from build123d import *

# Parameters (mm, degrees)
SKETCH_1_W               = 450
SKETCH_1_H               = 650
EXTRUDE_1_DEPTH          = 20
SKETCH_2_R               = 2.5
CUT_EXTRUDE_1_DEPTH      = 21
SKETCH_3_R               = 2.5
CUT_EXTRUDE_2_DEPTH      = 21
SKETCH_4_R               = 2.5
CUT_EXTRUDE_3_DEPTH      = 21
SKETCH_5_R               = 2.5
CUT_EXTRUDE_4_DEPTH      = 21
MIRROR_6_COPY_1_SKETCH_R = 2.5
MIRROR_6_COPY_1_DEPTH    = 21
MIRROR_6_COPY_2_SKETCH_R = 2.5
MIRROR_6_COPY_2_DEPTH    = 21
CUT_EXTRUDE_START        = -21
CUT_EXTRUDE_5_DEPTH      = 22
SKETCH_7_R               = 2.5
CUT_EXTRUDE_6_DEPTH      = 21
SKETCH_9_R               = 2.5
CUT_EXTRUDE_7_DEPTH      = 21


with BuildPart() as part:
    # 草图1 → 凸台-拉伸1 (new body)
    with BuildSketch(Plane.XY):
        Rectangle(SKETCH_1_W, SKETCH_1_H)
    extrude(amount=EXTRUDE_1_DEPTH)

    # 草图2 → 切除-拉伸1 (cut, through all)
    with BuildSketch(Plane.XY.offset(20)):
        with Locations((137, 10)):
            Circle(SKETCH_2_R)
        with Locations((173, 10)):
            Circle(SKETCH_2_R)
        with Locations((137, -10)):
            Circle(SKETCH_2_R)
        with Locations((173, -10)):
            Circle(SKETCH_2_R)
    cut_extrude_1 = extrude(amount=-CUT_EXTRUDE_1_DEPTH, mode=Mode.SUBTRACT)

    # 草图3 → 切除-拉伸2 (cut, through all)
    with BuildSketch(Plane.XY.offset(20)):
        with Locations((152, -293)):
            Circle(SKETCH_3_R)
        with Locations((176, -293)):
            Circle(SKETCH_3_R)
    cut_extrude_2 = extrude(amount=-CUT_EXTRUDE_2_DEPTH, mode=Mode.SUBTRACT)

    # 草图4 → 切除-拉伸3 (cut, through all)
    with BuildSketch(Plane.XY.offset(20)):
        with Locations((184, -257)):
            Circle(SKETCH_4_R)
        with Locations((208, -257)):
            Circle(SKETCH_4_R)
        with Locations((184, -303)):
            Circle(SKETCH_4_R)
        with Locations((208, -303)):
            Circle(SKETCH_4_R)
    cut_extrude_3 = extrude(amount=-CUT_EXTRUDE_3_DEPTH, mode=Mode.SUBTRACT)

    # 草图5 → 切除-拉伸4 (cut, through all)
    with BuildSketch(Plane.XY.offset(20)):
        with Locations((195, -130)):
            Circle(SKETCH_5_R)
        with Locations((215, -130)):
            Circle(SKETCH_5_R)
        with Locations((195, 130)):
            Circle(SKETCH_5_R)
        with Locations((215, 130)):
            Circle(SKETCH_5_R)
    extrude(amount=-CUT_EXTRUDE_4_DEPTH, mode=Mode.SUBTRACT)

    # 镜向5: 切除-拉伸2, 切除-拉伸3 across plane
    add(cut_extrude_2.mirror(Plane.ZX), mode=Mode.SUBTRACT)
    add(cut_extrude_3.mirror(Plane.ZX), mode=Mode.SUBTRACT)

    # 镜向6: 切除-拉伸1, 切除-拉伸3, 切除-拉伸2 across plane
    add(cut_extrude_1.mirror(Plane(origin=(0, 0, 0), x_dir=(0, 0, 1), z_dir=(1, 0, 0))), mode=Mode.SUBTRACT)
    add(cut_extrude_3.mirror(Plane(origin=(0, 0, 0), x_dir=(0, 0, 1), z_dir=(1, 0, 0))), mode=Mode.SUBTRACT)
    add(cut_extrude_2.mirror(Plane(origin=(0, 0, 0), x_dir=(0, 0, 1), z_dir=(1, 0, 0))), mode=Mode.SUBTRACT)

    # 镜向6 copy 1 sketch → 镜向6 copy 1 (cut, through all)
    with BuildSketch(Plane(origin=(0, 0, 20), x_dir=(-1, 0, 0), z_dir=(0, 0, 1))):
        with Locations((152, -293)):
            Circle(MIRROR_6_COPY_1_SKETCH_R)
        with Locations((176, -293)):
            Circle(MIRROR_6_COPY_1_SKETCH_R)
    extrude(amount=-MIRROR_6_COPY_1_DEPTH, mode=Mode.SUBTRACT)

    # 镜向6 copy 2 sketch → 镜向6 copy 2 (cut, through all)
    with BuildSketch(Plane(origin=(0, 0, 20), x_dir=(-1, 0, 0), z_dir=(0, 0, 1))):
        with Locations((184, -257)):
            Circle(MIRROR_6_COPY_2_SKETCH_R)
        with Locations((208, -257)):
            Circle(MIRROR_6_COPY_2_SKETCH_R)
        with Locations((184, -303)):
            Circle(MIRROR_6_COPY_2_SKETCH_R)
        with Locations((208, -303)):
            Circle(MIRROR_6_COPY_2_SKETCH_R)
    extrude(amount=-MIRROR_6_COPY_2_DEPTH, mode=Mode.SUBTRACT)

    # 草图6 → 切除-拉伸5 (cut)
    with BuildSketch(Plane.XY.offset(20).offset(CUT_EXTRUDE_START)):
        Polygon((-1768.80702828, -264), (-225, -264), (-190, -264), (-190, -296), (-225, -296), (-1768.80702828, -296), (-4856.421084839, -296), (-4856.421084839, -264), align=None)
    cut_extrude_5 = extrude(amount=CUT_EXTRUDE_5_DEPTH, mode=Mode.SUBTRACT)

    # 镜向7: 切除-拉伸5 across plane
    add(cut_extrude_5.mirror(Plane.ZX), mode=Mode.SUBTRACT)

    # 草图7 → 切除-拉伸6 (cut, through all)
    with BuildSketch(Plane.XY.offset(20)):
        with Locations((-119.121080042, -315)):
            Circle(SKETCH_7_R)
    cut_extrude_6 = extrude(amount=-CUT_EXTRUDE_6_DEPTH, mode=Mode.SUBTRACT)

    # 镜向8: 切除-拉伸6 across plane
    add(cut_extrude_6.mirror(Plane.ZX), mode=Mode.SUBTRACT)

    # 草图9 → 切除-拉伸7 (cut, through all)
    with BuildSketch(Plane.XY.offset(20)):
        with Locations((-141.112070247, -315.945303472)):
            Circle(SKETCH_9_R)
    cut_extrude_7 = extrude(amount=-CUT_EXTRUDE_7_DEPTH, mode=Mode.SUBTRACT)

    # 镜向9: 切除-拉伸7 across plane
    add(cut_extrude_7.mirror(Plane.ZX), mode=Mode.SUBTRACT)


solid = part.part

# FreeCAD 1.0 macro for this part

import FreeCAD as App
import Part
import Sketcher

doc = App.newDocument("Part")
body = doc.addObject("PartDesign::Body", "Body")

sketch1 = body.newObject("Sketcher::SketchObject", "Sketch")
sketch1.AttachmentSupport = (doc.getObject("XY_Plane"), [""])
sketch1.MapMode = "FlatFace"
sketch1.addGeometry([
    Part.LineSegment(App.Vector(-225, 325, 0), App.Vector(-225, -325, 0)),
    Part.LineSegment(App.Vector(-225, -325, 0), App.Vector(225, -325, 0)),
    Part.LineSegment(App.Vector(225, -325, 0), App.Vector(225, 325, 0)),
    Part.LineSegment(App.Vector(225, 325, 0), App.Vector(-225, 325, 0)),
], False)
sketch1.addConstraint([
    Sketcher.Constraint("Coincident", 0, 2, 1, 1),
    Sketcher.Constraint("Coincident", 1, 2, 2, 1),
    Sketcher.Constraint("Coincident", 2, 2, 3, 1),
    Sketcher.Constraint("Coincident", 3, 2, 0, 1),
    Sketcher.Constraint("Vertical", 0),
    Sketcher.Constraint("Horizontal", 1),
    Sketcher.Constraint("Vertical", 2),
    Sketcher.Constraint("Horizontal", 3),
    Sketcher.Constraint("Symmetric", 0, 2, 2, 2, -1, 1),
    Sketcher.Constraint("DistanceX", 1, 1, 1, 2, 450.0),
    Sketcher.Constraint("DistanceY", 0, 2, 0, 1, 650.0),
])
pad1 = body.newObject("PartDesign::Pad", "Pad")
pad1.Profile = sketch1
pad1.Length = 20

sketch2 = body.newObject("Sketcher::SketchObject", "Sketch001")
sketch2.AttachmentSupport = (doc.getObject("XY_Plane"), [""])
sketch2.MapMode = "FlatFace"
sketch2.AttachmentOffset = App.Placement(App.Vector(0, 0, 20), App.Rotation())
sketch2.addGeometry([
    Part.Circle(App.Vector(137, 10, 0), App.Vector(0, 0, 1), 2.5),
    Part.Circle(App.Vector(173, 10, 0), App.Vector(0, 0, 1), 2.5),
    Part.Circle(App.Vector(137, -10, 0), App.Vector(0, 0, 1), 2.5),
    Part.Circle(App.Vector(173, -10, 0), App.Vector(0, 0, 1), 2.5),
], False)
sketch2.addConstraint([
    Sketcher.Constraint("Equal", 0, 1),
    Sketcher.Constraint("Equal", 1, 2),
    Sketcher.Constraint("Equal", 2, 3),
    Sketcher.Constraint("Symmetric", 0, 3, 2, 3, -1),
    Sketcher.Constraint("Symmetric", 1, 3, 3, 3, -1),
    Sketcher.Constraint("Horizontal", 0, 3, 1, 3),
    Sketcher.Constraint("Diameter", 0, 5.0),
    Sketcher.Constraint("DistanceX", -1, 1, 0, 3, 137.0),
    Sketcher.Constraint("DistanceY", -1, 1, 0, 3, 10.0),
    Sketcher.Constraint("DistanceX", -1, 1, 1, 3, 173.0),
])
pocket1 = body.newObject("PartDesign::Pocket", "Pocket")
pocket1.Profile = sketch2
pocket1.Type = "ThroughAll"

sketch3 = body.newObject("Sketcher::SketchObject", "Sketch002")
sketch3.AttachmentSupport = (doc.getObject("XY_Plane"), [""])
sketch3.MapMode = "FlatFace"
sketch3.AttachmentOffset = App.Placement(App.Vector(0, 0, 20), App.Rotation())
sketch3.addGeometry([
    Part.Circle(App.Vector(152, -293, 0), App.Vector(0, 0, 1), 2.5),
    Part.Circle(App.Vector(176, -293, 0), App.Vector(0, 0, 1), 2.5),
], False)
sketch3.addConstraint([
    Sketcher.Constraint("Equal", 0, 1),
    Sketcher.Constraint("Horizontal", 0, 3, 1, 3),
    Sketcher.Constraint("Diameter", 0, 5.0),
    Sketcher.Constraint("DistanceX", -1, 1, 0, 3, 152.0),
    Sketcher.Constraint("DistanceY", 0, 3, -1, 1, 293.0),
    Sketcher.Constraint("DistanceX", -1, 1, 1, 3, 176.0),
])
pocket2 = body.newObject("PartDesign::Pocket", "Pocket001")
pocket2.Profile = sketch3
pocket2.Type = "ThroughAll"

sketch4 = body.newObject("Sketcher::SketchObject", "Sketch003")
sketch4.AttachmentSupport = (doc.getObject("XY_Plane"), [""])
sketch4.MapMode = "FlatFace"
sketch4.AttachmentOffset = App.Placement(App.Vector(0, 0, 20), App.Rotation())
sketch4.addGeometry([
    Part.Circle(App.Vector(184, -257, 0), App.Vector(0, 0, 1), 2.5),
    Part.Circle(App.Vector(208, -257, 0), App.Vector(0, 0, 1), 2.5),
    Part.Circle(App.Vector(184, -303, 0), App.Vector(0, 0, 1), 2.5),
    Part.Circle(App.Vector(208, -303, 0), App.Vector(0, 0, 1), 2.5),
], False)
sketch4.addConstraint([
    Sketcher.Constraint("Equal", 0, 1),
    Sketcher.Constraint("Equal", 1, 2),
    Sketcher.Constraint("Equal", 2, 3),
    Sketcher.Constraint("Horizontal", 0, 3, 1, 3),
    Sketcher.Constraint("Horizontal", 2, 3, 3, 3),
    Sketcher.Constraint("Vertical", 0, 3, 2, 3),
    Sketcher.Constraint("Vertical", 1, 3, 3, 3),
    Sketcher.Constraint("Diameter", 0, 5.0),
    Sketcher.Constraint("DistanceX", -1, 1, 0, 3, 184.0),
    Sketcher.Constraint("DistanceY", 0, 3, -1, 1, 257.0),
    Sketcher.Constraint("DistanceX", -1, 1, 1, 3, 208.0),
    Sketcher.Constraint("DistanceY", 2, 3, -1, 1, 303.0),
])
pocket3 = body.newObject("PartDesign::Pocket", "Pocket002")
pocket3.Profile = sketch4
pocket3.Type = "ThroughAll"

sketch5 = body.newObject("Sketcher::SketchObject", "Sketch004")
sketch5.AttachmentSupport = (doc.getObject("XY_Plane"), [""])
sketch5.MapMode = "FlatFace"
sketch5.AttachmentOffset = App.Placement(App.Vector(0, 0, 20), App.Rotation())
sketch5.addGeometry([
    Part.Circle(App.Vector(195, -130, 0), App.Vector(0, 0, 1), 2.5),
    Part.Circle(App.Vector(215, -130, 0), App.Vector(0, 0, 1), 2.5),
    Part.Circle(App.Vector(195, 130, 0), App.Vector(0, 0, 1), 2.5),
    Part.Circle(App.Vector(215, 130, 0), App.Vector(0, 0, 1), 2.5),
], False)
sketch5.addConstraint([
    Sketcher.Constraint("Equal", 0, 1),
    Sketcher.Constraint("Equal", 1, 2),
    Sketcher.Constraint("Equal", 2, 3),
    Sketcher.Constraint("Symmetric", 0, 3, 2, 3, -1),
    Sketcher.Constraint("Symmetric", 1, 3, 3, 3, -1),
    Sketcher.Constraint("Horizontal", 0, 3, 1, 3),
    Sketcher.Constraint("Diameter", 0, 5.0),
    Sketcher.Constraint("DistanceX", -1, 1, 0, 3, 195.0),
    Sketcher.Constraint("DistanceY", 0, 3, -1, 1, 130.0),
    Sketcher.Constraint("DistanceX", -1, 1, 1, 3, 215.0),
])
pocket4 = body.newObject("PartDesign::Pocket", "Pocket003")
pocket4.Profile = sketch5
pocket4.Type = "ThroughAll"
doc.recompute()

mirrored = body.newObject("PartDesign::Mirrored", "Mirrored")
mirrored.Originals = [pocket2, pocket3]
mirrored.MirrorPlane = (doc.getObject("XZ_Plane"), [""])
body.Tip = mirrored
doc.recompute()

mirrored2 = body.newObject("PartDesign::Mirrored", "Mirrored001")
mirrored2.Originals = [pocket1, pocket3, pocket2]
mirrored2.MirrorPlane = (doc.getObject("YZ_Plane"), [""])
body.Tip = mirrored2

sketch6 = body.newObject("Sketcher::SketchObject", "Sketch005")
sketch6.AttachmentSupport = (doc.getObject("XY_Plane"), [""])
sketch6.MapMode = "FlatFace"
sketch6.AttachmentOffset = App.Placement(App.Vector(0, 0, 20), App.Rotation())
sketch6.addGeometry([
    Part.Circle(App.Vector(-152, 293, 0), App.Vector(0, 0, 1), 2.5),
    Part.Circle(App.Vector(-176, 293, 0), App.Vector(0, 0, 1), 2.5),
], False)
sketch6.addConstraint([
    Sketcher.Constraint("Equal", 0, 1),
    Sketcher.Constraint("Horizontal", 0, 3, 1, 3),
    Sketcher.Constraint("Diameter", 0, 5.0),
    Sketcher.Constraint("DistanceX", 0, 3, -1, 1, 152.0),
    Sketcher.Constraint("DistanceY", -1, 1, 0, 3, 293.0),
    Sketcher.Constraint("DistanceX", 1, 3, -1, 1, 176.0),
])
pocket5 = body.newObject("PartDesign::Pocket", "Pocket004")
pocket5.Profile = sketch6
pocket5.Type = "ThroughAll"

sketch7 = body.newObject("Sketcher::SketchObject", "Sketch006")
sketch7.AttachmentSupport = (doc.getObject("XY_Plane"), [""])
sketch7.MapMode = "FlatFace"
sketch7.AttachmentOffset = App.Placement(App.Vector(0, 0, 20), App.Rotation())
sketch7.addGeometry([
    Part.Circle(App.Vector(-184, 257, 0), App.Vector(0, 0, 1), 2.5),
    Part.Circle(App.Vector(-208, 257, 0), App.Vector(0, 0, 1), 2.5),
    Part.Circle(App.Vector(-184, 303, 0), App.Vector(0, 0, 1), 2.5),
    Part.Circle(App.Vector(-208, 303, 0), App.Vector(0, 0, 1), 2.5),
], False)
sketch7.addConstraint([
    Sketcher.Constraint("Equal", 0, 1),
    Sketcher.Constraint("Equal", 1, 2),
    Sketcher.Constraint("Equal", 2, 3),
    Sketcher.Constraint("Horizontal", 0, 3, 1, 3),
    Sketcher.Constraint("Horizontal", 2, 3, 3, 3),
    Sketcher.Constraint("Vertical", 0, 3, 2, 3),
    Sketcher.Constraint("Vertical", 1, 3, 3, 3),
    Sketcher.Constraint("Diameter", 0, 5.0),
    Sketcher.Constraint("DistanceX", 0, 3, -1, 1, 184.0),
    Sketcher.Constraint("DistanceY", -1, 1, 0, 3, 257.0),
    Sketcher.Constraint("DistanceX", 1, 3, -1, 1, 208.0),
    Sketcher.Constraint("DistanceY", -1, 1, 2, 3, 303.0),
])
pocket6 = body.newObject("PartDesign::Pocket", "Pocket005")
pocket6.Profile = sketch7
pocket6.Type = "ThroughAll"

sketch8 = body.newObject("Sketcher::SketchObject", "Sketch007")
sketch8.AttachmentSupport = (doc.getObject("XY_Plane"), [""])
sketch8.MapMode = "FlatFace"
sketch8.AttachmentOffset = App.Placement(App.Vector(0, 0, -1), App.Rotation())
sketch8.addGeometry([
    Part.LineSegment(App.Vector(-190, -264, 0), App.Vector(-4856.421085, -264, 0)),
    Part.LineSegment(App.Vector(-4856.421085, -264, 0), App.Vector(-4856.421085, -296, 0)),
    Part.LineSegment(App.Vector(-4856.421085, -296, 0), App.Vector(-190, -296, 0)),
    Part.LineSegment(App.Vector(-190, -296, 0), App.Vector(-190, -264, 0)),
], False)
sketch8.addConstraint([
    Sketcher.Constraint("Coincident", 0, 2, 1, 1),
    Sketcher.Constraint("Coincident", 1, 2, 2, 1),
    Sketcher.Constraint("Coincident", 2, 2, 3, 1),
    Sketcher.Constraint("Coincident", 3, 2, 0, 1),
    Sketcher.Constraint("Horizontal", 0),
    Sketcher.Constraint("Vertical", 1),
    Sketcher.Constraint("Horizontal", 2),
    Sketcher.Constraint("Vertical", 3),
    Sketcher.Constraint("DistanceY", 1, 2, 1, 1, 32.0),
    Sketcher.Constraint("DistanceY", 0, 2, -1, 1, 264.0),
    Sketcher.Constraint("DistanceX", 2, 2, -1, 1, 190.0),
    Sketcher.Constraint("DistanceX", 0, 2, 0, 1, 4666.421085),
])
pocket7 = body.newObject("PartDesign::Pocket", "Pocket006")
pocket7.Profile = sketch8
pocket7.Length = 22
pocket7.Reversed = True
doc.recompute()

mirrored3 = body.newObject("PartDesign::Mirrored", "Mirrored002")
mirrored3.Originals = [pocket7]
mirrored3.MirrorPlane = (doc.getObject("XZ_Plane"), [""])
body.Tip = mirrored3

sketch9 = body.newObject("Sketcher::SketchObject", "Sketch008")
sketch9.AttachmentSupport = (doc.getObject("XY_Plane"), [""])
sketch9.MapMode = "FlatFace"
sketch9.AttachmentOffset = App.Placement(App.Vector(0, 0, 20), App.Rotation())
sketch9.addGeometry(Part.Circle(App.Vector(-119.12108, -315, 0), App.Vector(0, 0, 1), 2.5), False)
sketch9.addConstraint([
    Sketcher.Constraint("Diameter", 0, 5.0),
    Sketcher.Constraint("DistanceY", 0, 3, -1, 1, 315.0),
    Sketcher.Constraint("DistanceX", 0, 3, -1, 1, 119.12108),
])
pocket8 = body.newObject("PartDesign::Pocket", "Pocket007")
pocket8.Profile = sketch9
pocket8.Type = "ThroughAll"
doc.recompute()

mirrored4 = body.newObject("PartDesign::Mirrored", "Mirrored003")
mirrored4.Originals = [pocket8]
mirrored4.MirrorPlane = (doc.getObject("XZ_Plane"), [""])
body.Tip = mirrored4

sketch10 = body.newObject("Sketcher::SketchObject", "Sketch009")
sketch10.AttachmentSupport = (doc.getObject("XY_Plane"), [""])
sketch10.MapMode = "FlatFace"
sketch10.AttachmentOffset = App.Placement(App.Vector(0, 0, 20), App.Rotation())
sketch10.addGeometry(Part.Circle(App.Vector(-141.11207, -315.945303, 0), App.Vector(0, 0, 1), 2.5), False)
sketch10.addConstraint([
    Sketcher.Constraint("Diameter", 0, 5.0),
    Sketcher.Constraint("DistanceX", 0, 3, -1, 1, 141.11207),
    Sketcher.Constraint("DistanceY", 0, 3, -1, 1, 315.945303),
])
pocket9 = body.newObject("PartDesign::Pocket", "Pocket008")
pocket9.Profile = sketch10
pocket9.Type = "ThroughAll"
doc.recompute()

mirrored5 = body.newObject("PartDesign::Mirrored", "Mirrored004")
mirrored5.Originals = [pocket9]
mirrored5.MirrorPlane = (doc.getObject("XZ_Plane"), [""])
body.Tip = mirrored5

doc.recompute()
